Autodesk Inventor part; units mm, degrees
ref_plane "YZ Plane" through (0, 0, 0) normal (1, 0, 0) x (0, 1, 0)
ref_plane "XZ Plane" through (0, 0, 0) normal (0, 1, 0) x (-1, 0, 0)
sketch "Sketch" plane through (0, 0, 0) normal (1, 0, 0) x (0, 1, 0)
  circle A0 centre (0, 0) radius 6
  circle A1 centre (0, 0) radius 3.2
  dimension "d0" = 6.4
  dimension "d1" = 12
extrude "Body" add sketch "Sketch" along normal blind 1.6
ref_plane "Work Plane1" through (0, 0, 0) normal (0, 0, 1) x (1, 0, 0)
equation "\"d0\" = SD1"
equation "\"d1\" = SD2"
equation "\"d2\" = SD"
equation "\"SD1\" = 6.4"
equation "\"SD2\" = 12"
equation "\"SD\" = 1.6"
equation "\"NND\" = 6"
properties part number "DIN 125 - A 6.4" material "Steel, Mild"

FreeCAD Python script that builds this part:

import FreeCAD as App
import Part
import Sketcher

doc = App.newDocument("Part")
params = doc.addObject("Spreadsheet::Sheet", "Params")
for row, (alias, value) in enumerate([
    ("sketch1_diameter", "12 mm"),
    ("sketch1_diameter2", "6.4 mm"),
    ("pad1_length", "1.6 mm"),
], start=1):
    params.set(f"A{row}", alias)
    params.set(f"B{row}", "=" + value)
    params.setAlias(f"B{row}", alias)

body = doc.addObject("PartDesign::Body", "Body")

# Sketch on YZ plane
sketch1 = doc.addObject("Sketcher::SketchObject", "Sketch")
body.addObject(sketch1)
sketch1.AttachmentSupport = (doc.YZ_Plane, [""])
sketch1.MapMode = "FlatFace"
sketch1.addGeometry([
    Part.Circle(App.Vector(0, 0, 0), App.Vector(0, 0, 1), 6),
    Part.Circle(App.Vector(0, 0, 0), App.Vector(0, 0, 1), 3.2),
], False)
sketch1.addConstraint([
    Sketcher.Constraint("Coincident", 0, 3, -1, 1),
    Sketcher.Constraint("Coincident", 1, 3, -1, 1),
    Sketcher.Constraint("Diameter", 0, 12.0),
    Sketcher.Constraint("Diameter", 1, 6.4),
])
sketch1.setExpression("Constraints[2]", "Params.sketch1_diameter")
sketch1.setExpression("Constraints[3]", "Params.sketch1_diameter2")
pad1 = doc.addObject("PartDesign::Pad", "Pad")
body.addObject(pad1)
pad1.Profile = sketch1
pad1.setExpression("Length", "Params.pad1_length")

doc.recompute()
